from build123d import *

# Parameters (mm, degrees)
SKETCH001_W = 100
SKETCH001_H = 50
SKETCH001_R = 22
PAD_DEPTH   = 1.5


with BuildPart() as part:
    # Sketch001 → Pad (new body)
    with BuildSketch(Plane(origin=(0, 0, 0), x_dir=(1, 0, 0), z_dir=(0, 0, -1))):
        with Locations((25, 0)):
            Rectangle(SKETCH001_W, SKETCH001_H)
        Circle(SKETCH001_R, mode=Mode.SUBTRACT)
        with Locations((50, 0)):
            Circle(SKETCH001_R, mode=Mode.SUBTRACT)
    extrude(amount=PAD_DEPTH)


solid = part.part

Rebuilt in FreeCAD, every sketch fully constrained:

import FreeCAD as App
import Part
import Sketcher

V = App.Vector
Q = App.Units.Quantity

doc = App.newDocument("Part")
params = doc.addObject("Spreadsheet::Sheet", "Params")
for row, (alias, value) in enumerate([
    ("sketch1_diameter", "44 mm"),
    ("sketch1_width", "100 mm"),
    ("sketch1_height", "50 mm"),
    ("pad1_length", "1.5 mm"),
], start=1):
    params.set(f"A{row}", alias)
    params.set(f"B{row}", "=" + value)
    params.setAlias(f"B{row}", alias)

body = doc.addObject("PartDesign::Body", "Body")

sketch1 = body.newObject("Sketcher::SketchObject", "Sketch")
sketch1.AttachmentSupport = (doc.getObject("XY_Plane"), [""])
sketch1.MapMode = "FlatFace"
sketch1.addGeometry([
    Part.LineSegment(V(-25, -25, 0), V(-25, 25, 0)),
    Part.LineSegment(V(-25, 25, 0), V(75, 25, 0)),
    Part.LineSegment(V(75, 25, 0), V(75, -25, 0)),
    Part.LineSegment(V(75, -25, 0), V(-25, -25, 0)),
    Part.Circle(V(0, 0, 0), V(0, 0, 1), 22),
    Part.Circle(V(50, 0, 0), V(0, 0, 1), 22),
], False)
sketch1.addConstraint([
    Sketcher.Constraint("Coincident", 0, 2, 1, 1),
    Sketcher.Constraint("Coincident", 1, 2, 2, 1),
    Sketcher.Constraint("Coincident", 2, 2, 3, 1),
    Sketcher.Constraint("Coincident", 3, 2, 0, 1),
    Sketcher.Constraint("Vertical", 0),
    Sketcher.Constraint("Horizontal", 1),
    Sketcher.Constraint("Vertical", 2),
    Sketcher.Constraint("Horizontal", 3),
    Sketcher.Constraint("Coincident", 4, 3, -1, 1),
    Sketcher.Constraint("Equal", 4, 5),
    Sketcher.Constraint("PointOnObject", 5, 3, -1),
    Sketcher.Constraint("Diameter", 4, Q("44 mm")),
    Sketcher.Constraint("DistanceX", 1, 1, 1, 2, Q("100 mm")),
    Sketcher.Constraint("DistanceY", 0, 1, 0, 2, Q("50 mm")),
    Sketcher.Constraint("DistanceX", -1, 1, 5, 3, Q("50 mm")),
    Sketcher.Constraint("DistanceX", 0, 2, -1, 1, Q("25 mm")),
    Sketcher.Constraint("DistanceY", -1, 1, 0, 2, Q("25 mm")),
])
sketch1.setExpression("Constraints[11]", "Params.sketch1_diameter")
sketch1.setExpression("Constraints[12]", "Params.sketch1_width")
sketch1.setExpression("Constraints[13]", "Params.sketch1_height")
pad1 = body.newObject("PartDesign::Pad", "Pad")
pad1.Profile = sketch1
pad1.setExpression("Length", "Params.pad1_length")
pad1.Reversed = True

doc.recompute()
